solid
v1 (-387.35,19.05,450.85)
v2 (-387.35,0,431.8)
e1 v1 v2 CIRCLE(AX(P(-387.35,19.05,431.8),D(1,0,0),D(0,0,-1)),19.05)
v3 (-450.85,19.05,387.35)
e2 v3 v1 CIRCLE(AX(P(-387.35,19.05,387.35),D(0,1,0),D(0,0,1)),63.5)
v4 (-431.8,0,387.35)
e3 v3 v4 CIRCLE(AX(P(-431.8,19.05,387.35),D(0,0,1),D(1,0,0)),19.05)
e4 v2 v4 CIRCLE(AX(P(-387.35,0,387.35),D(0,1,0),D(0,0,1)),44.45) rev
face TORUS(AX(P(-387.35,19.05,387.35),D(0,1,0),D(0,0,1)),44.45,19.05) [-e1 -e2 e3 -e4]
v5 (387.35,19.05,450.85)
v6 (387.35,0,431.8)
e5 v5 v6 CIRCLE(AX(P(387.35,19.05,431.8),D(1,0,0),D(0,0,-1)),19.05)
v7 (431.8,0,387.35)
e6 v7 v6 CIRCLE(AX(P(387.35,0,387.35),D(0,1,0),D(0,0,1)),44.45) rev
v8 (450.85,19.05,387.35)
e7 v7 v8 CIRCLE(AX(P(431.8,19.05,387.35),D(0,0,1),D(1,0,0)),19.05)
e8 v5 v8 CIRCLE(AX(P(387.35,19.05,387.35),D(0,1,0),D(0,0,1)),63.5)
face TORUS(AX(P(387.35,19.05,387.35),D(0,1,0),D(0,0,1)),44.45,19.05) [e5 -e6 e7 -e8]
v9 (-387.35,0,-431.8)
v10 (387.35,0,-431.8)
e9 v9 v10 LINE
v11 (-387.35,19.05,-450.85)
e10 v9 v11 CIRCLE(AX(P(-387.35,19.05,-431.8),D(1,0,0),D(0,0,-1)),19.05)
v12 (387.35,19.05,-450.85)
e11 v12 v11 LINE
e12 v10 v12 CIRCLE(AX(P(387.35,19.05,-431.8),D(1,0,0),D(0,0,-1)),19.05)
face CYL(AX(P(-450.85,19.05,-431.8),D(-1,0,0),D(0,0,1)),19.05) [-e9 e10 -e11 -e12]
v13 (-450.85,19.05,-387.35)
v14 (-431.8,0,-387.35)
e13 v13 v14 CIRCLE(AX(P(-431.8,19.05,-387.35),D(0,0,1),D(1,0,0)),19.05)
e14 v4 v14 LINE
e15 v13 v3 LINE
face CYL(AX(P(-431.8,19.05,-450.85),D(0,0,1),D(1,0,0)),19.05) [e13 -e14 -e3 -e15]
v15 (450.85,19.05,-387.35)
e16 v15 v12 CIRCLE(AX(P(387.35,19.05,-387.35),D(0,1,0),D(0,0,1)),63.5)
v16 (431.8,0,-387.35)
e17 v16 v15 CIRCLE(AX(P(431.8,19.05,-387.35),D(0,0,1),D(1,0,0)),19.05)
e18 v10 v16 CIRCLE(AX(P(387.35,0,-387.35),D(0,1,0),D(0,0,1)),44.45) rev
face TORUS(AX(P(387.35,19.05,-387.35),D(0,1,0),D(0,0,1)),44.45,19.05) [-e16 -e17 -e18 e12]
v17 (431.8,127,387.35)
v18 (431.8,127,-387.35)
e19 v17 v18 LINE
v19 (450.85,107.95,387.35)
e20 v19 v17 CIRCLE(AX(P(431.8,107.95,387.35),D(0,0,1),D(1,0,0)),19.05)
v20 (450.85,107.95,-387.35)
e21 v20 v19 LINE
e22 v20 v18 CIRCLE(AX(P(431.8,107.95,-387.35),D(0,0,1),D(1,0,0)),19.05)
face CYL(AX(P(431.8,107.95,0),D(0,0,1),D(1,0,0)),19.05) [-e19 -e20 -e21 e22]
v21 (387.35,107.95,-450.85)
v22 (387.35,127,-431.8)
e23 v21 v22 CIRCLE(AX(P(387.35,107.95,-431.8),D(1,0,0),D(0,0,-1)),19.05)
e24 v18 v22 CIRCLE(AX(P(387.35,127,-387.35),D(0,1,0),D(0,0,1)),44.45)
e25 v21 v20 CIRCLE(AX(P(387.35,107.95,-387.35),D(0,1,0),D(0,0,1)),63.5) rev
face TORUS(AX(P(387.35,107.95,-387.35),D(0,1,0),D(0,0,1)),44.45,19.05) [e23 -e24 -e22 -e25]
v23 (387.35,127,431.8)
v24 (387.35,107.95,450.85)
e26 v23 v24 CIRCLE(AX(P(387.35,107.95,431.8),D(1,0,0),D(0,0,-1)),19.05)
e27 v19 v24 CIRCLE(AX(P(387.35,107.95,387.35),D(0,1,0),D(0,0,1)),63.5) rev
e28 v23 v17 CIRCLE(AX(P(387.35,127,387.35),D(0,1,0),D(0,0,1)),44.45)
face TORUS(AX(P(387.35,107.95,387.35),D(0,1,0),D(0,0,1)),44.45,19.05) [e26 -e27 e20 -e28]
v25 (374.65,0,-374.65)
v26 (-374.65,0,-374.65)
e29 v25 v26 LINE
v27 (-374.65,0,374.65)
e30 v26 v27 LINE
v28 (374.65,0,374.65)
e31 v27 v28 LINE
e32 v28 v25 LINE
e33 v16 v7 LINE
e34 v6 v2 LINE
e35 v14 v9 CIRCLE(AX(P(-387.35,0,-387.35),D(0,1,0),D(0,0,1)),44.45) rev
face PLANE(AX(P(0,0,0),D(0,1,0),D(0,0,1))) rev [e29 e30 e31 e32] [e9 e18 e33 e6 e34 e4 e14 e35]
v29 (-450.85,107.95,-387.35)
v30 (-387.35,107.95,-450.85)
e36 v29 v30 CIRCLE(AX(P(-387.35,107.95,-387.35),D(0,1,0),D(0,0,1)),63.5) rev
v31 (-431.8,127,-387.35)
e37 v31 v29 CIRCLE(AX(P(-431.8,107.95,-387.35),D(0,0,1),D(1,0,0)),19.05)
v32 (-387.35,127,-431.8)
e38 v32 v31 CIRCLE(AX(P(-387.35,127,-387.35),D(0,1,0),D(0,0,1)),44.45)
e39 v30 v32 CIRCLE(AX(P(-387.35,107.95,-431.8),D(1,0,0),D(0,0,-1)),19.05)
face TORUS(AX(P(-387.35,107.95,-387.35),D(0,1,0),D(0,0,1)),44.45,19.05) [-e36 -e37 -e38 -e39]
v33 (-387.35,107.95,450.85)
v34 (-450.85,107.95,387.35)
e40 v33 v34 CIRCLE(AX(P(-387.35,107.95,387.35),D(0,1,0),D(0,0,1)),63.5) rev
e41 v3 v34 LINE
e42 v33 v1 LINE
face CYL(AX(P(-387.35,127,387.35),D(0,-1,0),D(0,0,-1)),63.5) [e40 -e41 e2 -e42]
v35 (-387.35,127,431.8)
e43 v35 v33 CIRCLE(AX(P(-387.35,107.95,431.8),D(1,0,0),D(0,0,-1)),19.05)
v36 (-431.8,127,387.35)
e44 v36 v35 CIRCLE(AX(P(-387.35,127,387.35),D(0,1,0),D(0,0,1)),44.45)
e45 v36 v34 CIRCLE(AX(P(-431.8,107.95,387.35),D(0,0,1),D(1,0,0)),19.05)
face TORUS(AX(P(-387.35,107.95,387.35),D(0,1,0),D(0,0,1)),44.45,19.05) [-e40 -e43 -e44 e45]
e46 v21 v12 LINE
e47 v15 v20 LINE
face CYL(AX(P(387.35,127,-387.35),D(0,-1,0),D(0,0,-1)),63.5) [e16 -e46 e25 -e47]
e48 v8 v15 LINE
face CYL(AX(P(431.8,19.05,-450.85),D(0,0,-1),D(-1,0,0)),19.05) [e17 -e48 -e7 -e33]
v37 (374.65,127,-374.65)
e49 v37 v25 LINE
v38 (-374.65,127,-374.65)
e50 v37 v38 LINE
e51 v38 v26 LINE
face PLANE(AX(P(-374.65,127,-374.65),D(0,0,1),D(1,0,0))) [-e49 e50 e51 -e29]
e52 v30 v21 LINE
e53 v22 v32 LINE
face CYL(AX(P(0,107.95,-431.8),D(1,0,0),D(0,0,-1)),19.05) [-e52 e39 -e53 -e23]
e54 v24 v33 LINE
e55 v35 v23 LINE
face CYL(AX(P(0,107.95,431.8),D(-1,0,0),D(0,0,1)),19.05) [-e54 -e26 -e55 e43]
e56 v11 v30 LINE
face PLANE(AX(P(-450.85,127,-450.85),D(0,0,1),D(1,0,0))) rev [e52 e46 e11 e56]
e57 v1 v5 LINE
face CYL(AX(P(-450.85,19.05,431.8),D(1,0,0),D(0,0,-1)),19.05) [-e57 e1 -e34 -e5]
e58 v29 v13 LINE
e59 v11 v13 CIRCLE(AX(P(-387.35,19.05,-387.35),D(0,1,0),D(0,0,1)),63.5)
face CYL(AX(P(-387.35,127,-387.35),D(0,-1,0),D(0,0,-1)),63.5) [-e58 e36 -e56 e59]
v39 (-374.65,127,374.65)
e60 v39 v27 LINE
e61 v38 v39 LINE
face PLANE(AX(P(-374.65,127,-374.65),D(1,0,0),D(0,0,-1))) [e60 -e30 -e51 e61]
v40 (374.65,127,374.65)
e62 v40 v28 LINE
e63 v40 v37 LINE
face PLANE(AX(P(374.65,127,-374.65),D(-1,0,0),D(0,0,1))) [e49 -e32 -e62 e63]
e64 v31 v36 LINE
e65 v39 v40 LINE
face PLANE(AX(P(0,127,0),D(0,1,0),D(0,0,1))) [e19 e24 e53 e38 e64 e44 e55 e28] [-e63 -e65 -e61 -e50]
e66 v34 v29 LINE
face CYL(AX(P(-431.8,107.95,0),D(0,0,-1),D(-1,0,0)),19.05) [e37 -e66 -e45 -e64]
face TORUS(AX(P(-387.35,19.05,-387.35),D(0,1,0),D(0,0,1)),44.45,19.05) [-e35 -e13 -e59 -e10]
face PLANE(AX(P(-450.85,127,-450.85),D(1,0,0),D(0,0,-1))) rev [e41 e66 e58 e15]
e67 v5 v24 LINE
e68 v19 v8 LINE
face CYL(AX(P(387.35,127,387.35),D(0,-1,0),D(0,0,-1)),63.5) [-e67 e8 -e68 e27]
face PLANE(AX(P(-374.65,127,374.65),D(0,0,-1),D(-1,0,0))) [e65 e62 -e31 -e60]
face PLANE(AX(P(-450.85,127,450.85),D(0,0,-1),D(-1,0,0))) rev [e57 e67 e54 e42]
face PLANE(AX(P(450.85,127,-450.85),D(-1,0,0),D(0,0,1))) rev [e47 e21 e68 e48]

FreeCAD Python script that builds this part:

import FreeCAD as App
import Part
import Sketcher
from FreeCAD import Vector
Q = App.Units.Quantity


def edges_at(feature, points):
    """Names of the edges that pass closest to the given points."""
    edges = feature.Shape.Edges
    near = lambda p: min(range(len(edges)), key=lambda i: edges[i].distToShape(Part.Vertex(*p))[0])
    return sorted({f"Edge{near(p) + 1}" for p in points})

doc = App.newDocument("Part")
body = doc.addObject("PartDesign::Body", "Body")

# Sketch on XZ plane
sketch1 = body.newObject("Sketcher::SketchObject", "Sketch")
sketch1.AttachmentSupport = (doc.getObject("XZ_Plane"), [""])
sketch1.MapMode = "FlatFace"
sketch1.addGeometry([
    Part.LineSegment(Vector(-451, -451, 0), Vector(-451, 451, 0)),  # 0
    Part.LineSegment(Vector(-451, 451, 0), Vector(451, 451, 0)),  # 1
    Part.LineSegment(Vector(451, 451, 0), Vector(451, -451, 0)),  # 2
    Part.LineSegment(Vector(451, -451, 0), Vector(-451, -451, 0)),  # 3
    Part.LineSegment(Vector(375, 375, 0), Vector(-375, 375, 0)),  # 4
    Part.LineSegment(Vector(-375, 375, 0), Vector(-375, -375, 0)),  # 5
    Part.LineSegment(Vector(-375, -375, 0), Vector(375, -375, 0)),  # 6
    Part.LineSegment(Vector(375, -375, 0), Vector(375, 375, 0)),  # 7
], False)
sketch1.addConstraint([
    Sketcher.Constraint("Coincident", 0, 2, 1, 1),
    Sketcher.Constraint("Coincident", 1, 2, 2, 1),
    Sketcher.Constraint("Coincident", 2, 2, 3, 1),
    Sketcher.Constraint("Coincident", 3, 2, 0, 1),
    Sketcher.Constraint("Coincident", 4, 2, 5, 1),
    Sketcher.Constraint("Coincident", 5, 2, 6, 1),
    Sketcher.Constraint("Coincident", 6, 2, 7, 1),
    Sketcher.Constraint("Coincident", 7, 2, 4, 1),
    Sketcher.Constraint("Vertical", 0),
    Sketcher.Constraint("Horizontal", 1),
    Sketcher.Constraint("Vertical", 2),
    Sketcher.Constraint("Horizontal", 3),
    Sketcher.Constraint("Horizontal", 4),
    Sketcher.Constraint("Vertical", 5),
    Sketcher.Constraint("Horizontal", 6),
    Sketcher.Constraint("Vertical", 7),
    Sketcher.Constraint("Symmetric", 0, 2, 2, 2, -1, 1),
    Sketcher.Constraint("Symmetric", 4, 2, 6, 2, -1, 1),
    Sketcher.Constraint("Equal", 3, 0),
    Sketcher.Constraint("Equal", 6, 5),
    Sketcher.Constraint("DistanceX", 1, 1, 1, 2, Q("35.5 in")),
    Sketcher.Constraint("DistanceX", 4, 2, 4, 1, Q("29.5 in")),
])
pad1 = body.newObject("PartDesign::Pad", "Pad")
pad1.Profile = sketch1
pad1.Length = Q("5 in")
pad1.Reversed = True
doc.recompute()

fillet = body.newObject("PartDesign::Fillet", "Fillet")
fillet.Base = (pad1, edges_at(pad1, [
    (-450.85, 63.5, -450.85),
    (450.85, 63.5, -450.85),
    (450.85, 63.5, 450.85),
    (-450.85, 63.5, 450.85),
]))
fillet.Radius = Q("2.5 in")
doc.recompute()

fillet2 = body.newObject("PartDesign::Fillet", "Fillet001")
fillet2.Base = (fillet, edges_at(fillet, [
    (-450.85, 0, 0),
    (-450.85, 127, 0),
    (0, 0, -450.85),
    (450.85, 0, 0),
    (0, 0, 450.85),
    (-432.251, 0, 432.251),
    (432.251, 0, 432.251),
    (432.251, 0, -432.251),
    (-432.251, 0, -432.251),
    (0, 127, -450.85),
    (0, 127, 450.85),
    (450.85, 127, 0),
    (-432.251, 127, 432.251),
    (432.251, 127, 432.251),
    (432.251, 127, -432.251),
    (-432.251, 127, -432.251),
]))
fillet2.Radius = Q("0.75 in")

doc.recompute()
